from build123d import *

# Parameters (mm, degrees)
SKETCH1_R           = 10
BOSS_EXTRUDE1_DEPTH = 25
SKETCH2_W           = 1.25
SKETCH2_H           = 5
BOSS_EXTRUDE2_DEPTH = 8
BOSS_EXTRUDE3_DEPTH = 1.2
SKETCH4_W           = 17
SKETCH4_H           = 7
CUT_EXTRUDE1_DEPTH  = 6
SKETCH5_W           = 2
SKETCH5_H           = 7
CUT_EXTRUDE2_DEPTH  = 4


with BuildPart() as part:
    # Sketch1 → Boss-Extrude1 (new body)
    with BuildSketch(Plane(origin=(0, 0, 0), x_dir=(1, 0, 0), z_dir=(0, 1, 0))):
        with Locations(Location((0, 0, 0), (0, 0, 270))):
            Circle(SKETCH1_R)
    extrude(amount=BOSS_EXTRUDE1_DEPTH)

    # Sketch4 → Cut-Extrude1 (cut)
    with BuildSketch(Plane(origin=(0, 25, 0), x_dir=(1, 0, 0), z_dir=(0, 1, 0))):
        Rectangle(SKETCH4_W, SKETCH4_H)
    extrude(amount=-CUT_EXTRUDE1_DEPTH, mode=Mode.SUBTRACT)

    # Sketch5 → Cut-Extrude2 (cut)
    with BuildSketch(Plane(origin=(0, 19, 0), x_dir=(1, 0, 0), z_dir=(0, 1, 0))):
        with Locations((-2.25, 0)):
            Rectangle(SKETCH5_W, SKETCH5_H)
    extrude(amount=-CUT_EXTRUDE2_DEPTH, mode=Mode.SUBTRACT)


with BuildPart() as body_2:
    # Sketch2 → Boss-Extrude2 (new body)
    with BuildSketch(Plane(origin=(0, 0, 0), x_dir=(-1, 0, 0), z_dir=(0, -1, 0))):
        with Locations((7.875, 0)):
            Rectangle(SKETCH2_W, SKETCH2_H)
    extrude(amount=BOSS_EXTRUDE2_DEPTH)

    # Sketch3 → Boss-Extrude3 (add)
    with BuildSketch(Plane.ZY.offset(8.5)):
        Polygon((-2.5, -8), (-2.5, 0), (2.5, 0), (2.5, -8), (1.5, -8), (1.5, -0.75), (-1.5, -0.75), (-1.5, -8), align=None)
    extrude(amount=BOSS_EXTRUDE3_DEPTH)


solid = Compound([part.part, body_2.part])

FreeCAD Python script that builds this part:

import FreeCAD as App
import Part
import Sketcher
Q = App.Units.Quantity

doc = App.newDocument("Part")
params = doc.addObject("Spreadsheet::Sheet", "Params")
for row, (alias, value) in enumerate([
    ("sketch1_diameter", "20 mm"),
    ("pad1_length", "25 mm"),
    ("sketch2_width", "17 mm"),
    ("sketch2_height", "7 mm"),
    ("pocket1_length", "6 mm"),
    ("sketch3_width", "2 mm"),
    ("sketch3_height", "7 mm"),
    ("pocket2_length", "4 mm"),
    ("sketch4_height", "5 mm"),
    ("sketch4_width", "1.25 mm"),
    ("pad2_length", "8 mm"),
    ("sketch5_width", "8 mm"),
    ("sketch5_height", "1 mm"),
    ("sketch5_height2", "3 mm"),
    ("sketch5_width2", "7.25 mm"),
    ("pad3_length", "1.2 mm"),
], start=1):
    params.set(f"A{row}", alias)
    params.set(f"B{row}", "=" + value)
    params.setAlias(f"B{row}", alias)

body = doc.addObject("PartDesign::Body", "Body")

# Sketch on XZ plane
sketch1 = doc.addObject("Sketcher::SketchObject", "Sketch")
body.addObject(sketch1)
sketch1.AttachmentSupport = (doc.XZ_Plane, [""])
sketch1.MapMode = "FlatFace"
sketch1.addGeometry(Part.Circle(App.Vector(0, 0, 0), App.Vector(0, 0, 1), 10), False)
sketch1.addConstraint(Sketcher.Constraint("Coincident", 0, 3, -1, 1))
sketch1.addConstraint(Sketcher.Constraint("Diameter", 0, Q("20 mm")))
sketch1.setExpression("Constraints[1]", "Params.sketch1_diameter")
pad1 = doc.addObject("PartDesign::Pad", "Pad")
body.addObject(pad1)
pad1.Profile = sketch1
pad1.setExpression("Length", "Params.pad1_length")
pad1.Reversed = True

# Sketch on XZ plane
sketch2 = doc.addObject("Sketcher::SketchObject", "Sketch001")
body.addObject(sketch2)
sketch2.AttachmentSupport = (doc.XZ_Plane, [""])
sketch2.MapMode = "FlatFace"
sketch2.AttachmentOffset = App.Placement(App.Vector(0, 0, -25), App.Rotation())
sketch2.addGeometry(Part.LineSegment(App.Vector(-8, -4, 0), App.Vector(-8, 4, 0)), False)
sketch2.addGeometry(Part.LineSegment(App.Vector(-8, 4, 0), App.Vector(8, 4, 0)), False)
sketch2.addGeometry(Part.LineSegment(App.Vector(8, 4, 0), App.Vector(8, -4, 0)), False)
sketch2.addGeometry(Part.LineSegment(App.Vector(8, -4, 0), App.Vector(-8, -4, 0)), False)
sketch2.addConstraint(Sketcher.Constraint("Coincident", 0, 2, 1, 1))
sketch2.addConstraint(Sketcher.Constraint("Coincident", 1, 2, 2, 1))
sketch2.addConstraint(Sketcher.Constraint("Coincident", 2, 2, 3, 1))
sketch2.addConstraint(Sketcher.Constraint("Coincident", 3, 2, 0, 1))
sketch2.addConstraint(Sketcher.Constraint("Vertical", 0))
sketch2.addConstraint(Sketcher.Constraint("Horizontal", 1))
sketch2.addConstraint(Sketcher.Constraint("Vertical", 2))
sketch2.addConstraint(Sketcher.Constraint("Horizontal", 3))
sketch2.addConstraint(Sketcher.Constraint("Symmetric", 0, 2, 2, 2, -1, 1))
sketch2.addConstraint(Sketcher.Constraint("DistanceX", 1, 1, 1, 2, Q("17 mm")))
sketch2.addConstraint(Sketcher.Constraint("DistanceY", 0, 1, 0, 2, Q("7 mm")))
sketch2.setExpression("Constraints[9]", "Params.sketch2_width")
sketch2.setExpression("Constraints[10]", "Params.sketch2_height")
pocket1 = doc.addObject("PartDesign::Pocket", "Pocket")
body.addObject(pocket1)
pocket1.Profile = sketch2
pocket1.setExpression("Length", "Params.pocket1_length")
pocket1.Reversed = True

# Sketch on XZ plane
sketch3 = doc.addObject("Sketcher::SketchObject", "Sketch002")
body.addObject(sketch3)
sketch3.AttachmentSupport = (doc.XZ_Plane, [""])
sketch3.MapMode = "FlatFace"
sketch3.AttachmentOffset = App.Placement(App.Vector(0, 0, -19), App.Rotation())
sketch3.addGeometry(Part.LineSegment(App.Vector(-3.2, -3.5, 0), App.Vector(-3.2, 3.5, 0)), False)
sketch3.addGeometry(Part.LineSegment(App.Vector(-3.2, 3.5, 0), App.Vector(-1.2, 3.5, 0)), False)
sketch3.addGeometry(Part.LineSegment(App.Vector(-1.2, 3.5, 0), App.Vector(-1.2, -3.5, 0)), False)
sketch3.addGeometry(Part.LineSegment(App.Vector(-1.2, -3.5, 0), App.Vector(-3.2, -3.5, 0)), False)
sketch3.addConstraint(Sketcher.Constraint("Coincident", 0, 2, 1, 1))
sketch3.addConstraint(Sketcher.Constraint("Coincident", 1, 2, 2, 1))
sketch3.addConstraint(Sketcher.Constraint("Coincident", 2, 2, 3, 1))
sketch3.addConstraint(Sketcher.Constraint("Coincident", 3, 2, 0, 1))
sketch3.addConstraint(Sketcher.Constraint("Vertical", 0))
sketch3.addConstraint(Sketcher.Constraint("Horizontal", 1))
sketch3.addConstraint(Sketcher.Constraint("Vertical", 2))
sketch3.addConstraint(Sketcher.Constraint("Horizontal", 3))
sketch3.addConstraint(Sketcher.Constraint("DistanceX", 1, 1, 1, 2, Q("2 mm")))
sketch3.addConstraint(Sketcher.Constraint("DistanceY", 0, 1, 0, 2, Q("7 mm")))
sketch3.addConstraint(Sketcher.Constraint("DistanceY", -1, 1, 0, 2, Q("3.5 mm")))
sketch3.addConstraint(Sketcher.Constraint("DistanceX", 0, 2, -1, 1, Q("3.25 mm")))
sketch3.setExpression("Constraints[8]", "Params.sketch3_width")
sketch3.setExpression("Constraints[9]", "Params.sketch3_height")
pocket2 = doc.addObject("PartDesign::Pocket", "Pocket001")
body.addObject(pocket2)
pocket2.Profile = sketch3
pocket2.setExpression("Length", "Params.pocket2_length")
pocket2.Reversed = True
body2 = doc.addObject("PartDesign::Body", "Body001")

# Sketch on XZ plane
sketch4 = doc.addObject("Sketcher::SketchObject", "Sketch003")
body2.addObject(sketch4)
sketch4.AttachmentSupport = (doc.getObject("XZ_Plane001"), [""])
sketch4.MapMode = "FlatFace"
sketch4.addGeometry(Part.LineSegment(App.Vector(-7.2, -2.5, 0), App.Vector(-7.2, 2.5, 0)), False)
sketch4.addGeometry(Part.LineSegment(App.Vector(-7.2, 2.5, 0), App.Vector(-8.5, 2.5, 0)), False)
sketch4.addGeometry(Part.LineSegment(App.Vector(-8.5, 2.5, 0), App.Vector(-8.5, -2.5, 0)), False)
sketch4.addGeometry(Part.LineSegment(App.Vector(-8.5, -2.5, 0), App.Vector(-7.2, -2.5, 0)), False)
sketch4.addConstraint(Sketcher.Constraint("Coincident", 0, 2, 1, 1))
sketch4.addConstraint(Sketcher.Constraint("Coincident", 1, 2, 2, 1))
sketch4.addConstraint(Sketcher.Constraint("Coincident", 2, 2, 3, 1))
sketch4.addConstraint(Sketcher.Constraint("Coincident", 3, 2, 0, 1))
sketch4.addConstraint(Sketcher.Constraint("Vertical", 0))
sketch4.addConstraint(Sketcher.Constraint("Horizontal", 1))
sketch4.addConstraint(Sketcher.Constraint("Vertical", 2))
sketch4.addConstraint(Sketcher.Constraint("Horizontal", 3))
sketch4.addConstraint(Sketcher.Constraint("DistanceY", 0, 1, 0, 2, Q("5 mm")))
sketch4.addConstraint(Sketcher.Constraint("DistanceX", 1, 2, 1, 1, Q("1.25 mm")))
sketch4.addConstraint(Sketcher.Constraint("DistanceY", -1, 1, 0, 2, Q("2.5 mm")))
sketch4.addConstraint(Sketcher.Constraint("DistanceX", 1, 2, -1, 1, Q("8.5 mm")))
sketch4.setExpression("Constraints[8]", "Params.sketch4_height")
sketch4.setExpression("Constraints[9]", "Params.sketch4_width")
pad2 = doc.addObject("PartDesign::Pad", "Pad001")
body2.addObject(pad2)
pad2.Profile = sketch4
pad2.setExpression("Length", "Params.pad2_length")

# Sketch on YZ plane
sketch5 = doc.addObject("Sketcher::SketchObject", "Sketch004")
body2.addObject(sketch5)
sketch5.AttachmentSupport = (doc.getObject("YZ_Plane001"), [""])
sketch5.MapMode = "FlatFace"
sketch5.AttachmentOffset = App.Placement(App.Vector(0, 0, -8.5), App.Rotation())
sketch5.addGeometry(Part.LineSegment(App.Vector(0, -2.5, 0), App.Vector(-8, -2.5, 0)), False)
sketch5.addGeometry(Part.LineSegment(App.Vector(-8, -2.5, 0), App.Vector(-8, -1.5, 0)), False)
sketch5.addGeometry(Part.LineSegment(App.Vector(-8, -1.5, 0), App.Vector(-0.8, -1.5, 0)), False)
sketch5.addGeometry(Part.LineSegment(App.Vector(-0.8, -1.5, 0), App.Vector(-0.8, 1.5, 0)), False)
sketch5.addGeometry(Part.LineSegment(App.Vector(-0.8, 1.5, 0), App.Vector(-8, 1.5, 0)), False)
sketch5.addGeometry(Part.LineSegment(App.Vector(-8, 1.5, 0), App.Vector(-8, 2.5, 0)), False)
sketch5.addGeometry(Part.LineSegment(App.Vector(-8, 2.5, 0), App.Vector(0, 2.5, 0)), False)
sketch5.addGeometry(Part.LineSegment(App.Vector(0, 2.5, 0), App.Vector(0, -2.5, 0)), False)
sketch5.addConstraint(Sketcher.Constraint("Coincident", 0, 2, 1, 1))
sketch5.addConstraint(Sketcher.Constraint("Coincident", 1, 2, 2, 1))
sketch5.addConstraint(Sketcher.Constraint("Coincident", 2, 2, 3, 1))
sketch5.addConstraint(Sketcher.Constraint("Coincident", 3, 2, 4, 1))
sketch5.addConstraint(Sketcher.Constraint("Coincident", 4, 2, 5, 1))
sketch5.addConstraint(Sketcher.Constraint("Coincident", 5, 2, 6, 1))
sketch5.addConstraint(Sketcher.Constraint("Coincident", 6, 2, 7, 1))
sketch5.addConstraint(Sketcher.Constraint("Coincident", 7, 2, 0, 1))
sketch5.addConstraint(Sketcher.Constraint("Horizontal", 0))
sketch5.addConstraint(Sketcher.Constraint("Vertical", 1))
sketch5.addConstraint(Sketcher.Constraint("Horizontal", 2))
sketch5.addConstraint(Sketcher.Constraint("Vertical", 3))
sketch5.addConstraint(Sketcher.Constraint("Horizontal", 4))
sketch5.addConstraint(Sketcher.Constraint("Vertical", 5))
sketch5.addConstraint(Sketcher.Constraint("Horizontal", 6))
sketch5.addConstraint(Sketcher.Constraint("Vertical", 7))
sketch5.addConstraint(Sketcher.Constraint("Symmetric", 6, 2, 7, 2, -1, 1))
sketch5.addConstraint(Sketcher.Constraint("Symmetric", 1, 2, 4, 2, -1))
sketch5.addConstraint(Sketcher.Constraint("DistanceX", 0, 2, 0, 1, Q("8 mm")))
sketch5.addConstraint(Sketcher.Constraint("DistanceY", 1, 1, 1, 2, Q("1 mm")))
sketch5.addConstraint(Sketcher.Constraint("DistanceY", 3, 1, 3, 2, Q("3 mm")))
sketch5.addConstraint(Sketcher.Constraint("DistanceX", 2, 1, 2, 2, Q("7.25 mm")))
sketch5.setExpression("Constraints[18]", "Params.sketch5_width")
sketch5.setExpression("Constraints[19]", "Params.sketch5_height")
sketch5.setExpression("Constraints[20]", "Params.sketch5_height2")
sketch5.setExpression("Constraints[21]", "Params.sketch5_width2")
pad3 = doc.addObject("PartDesign::Pad", "Pad002")
body2.addObject(pad3)
pad3.Profile = sketch5
pad3.setExpression("Length", "Params.pad3_length")
pad3.Reversed = True

doc.recompute()
